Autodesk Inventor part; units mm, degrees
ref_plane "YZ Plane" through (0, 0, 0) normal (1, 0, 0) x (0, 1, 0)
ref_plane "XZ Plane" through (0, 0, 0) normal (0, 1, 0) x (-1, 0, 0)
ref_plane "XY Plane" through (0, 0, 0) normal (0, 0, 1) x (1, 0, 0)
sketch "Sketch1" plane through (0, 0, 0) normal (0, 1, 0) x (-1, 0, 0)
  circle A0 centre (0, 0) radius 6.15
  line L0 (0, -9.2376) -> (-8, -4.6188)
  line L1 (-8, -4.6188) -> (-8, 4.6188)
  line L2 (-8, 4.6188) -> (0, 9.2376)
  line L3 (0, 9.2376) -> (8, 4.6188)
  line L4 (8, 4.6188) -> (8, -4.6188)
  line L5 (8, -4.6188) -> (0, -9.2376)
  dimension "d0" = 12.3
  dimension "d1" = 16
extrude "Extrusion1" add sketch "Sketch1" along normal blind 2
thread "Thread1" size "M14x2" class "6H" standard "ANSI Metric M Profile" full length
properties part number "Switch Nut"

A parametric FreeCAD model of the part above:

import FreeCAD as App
import Part
import Sketcher

V = App.Vector
Q = App.Units.Quantity


def add_polygon(sketch, points):
    """Adds a closed chain of lines whose ends are joined by coincident constraints."""
    first, n = sketch.GeometryCount, len(points)
    for a, b in zip(points, points[1:] + points[:1]):
        sketch.addGeometry(Part.LineSegment(App.Vector(*a, 0), App.Vector(*b, 0)), False)
    for i in range(n):
        sketch.addConstraint(Sketcher.Constraint("Coincident", first + i, 2, first + (i + 1) % n, 1))

doc = App.newDocument("Part")
body = doc.addObject("PartDesign::Body", "Body")

# Sketch on XZ plane
sketch1 = body.newObject("Sketcher::SketchObject", "Sketch")
sketch1.AttachmentSupport = (doc.getObject("XZ_Plane"), [""])
sketch1.MapMode = "FlatFace"
add_polygon(sketch1, [(8, -5), (0, -9), (-8, -5), (-8, 5), (0, 9), (8, 5)])  # lines 0-5
sketch1.addGeometry(Part.Circle(V(0, 0, 0), V(0, 0, 1), 6), False)  # 6
sketch1.addConstraint([
    Sketcher.Constraint("Vertical", 2),
    Sketcher.Constraint("Vertical", 5),
    Sketcher.Constraint("Coincident", 6, 3, -1, 1),
    Sketcher.Constraint("Symmetric", 0, 2, 3, 2, -1, 1),
    Sketcher.Constraint("Symmetric", 1, 2, 4, 2, -1, 1),
    Sketcher.Constraint("PointOnObject", 0, 2, -2),
    Sketcher.Constraint("Parallel", 0, 3),
    Sketcher.Constraint("Horizontal", 2, 2, 4, 2),
    Sketcher.Constraint("Diameter", 6, Q("12.3 mm")),
    Sketcher.Constraint("DistanceX", 2, 2, 4, 2, Q("16 mm")),
    Sketcher.Constraint("Angle", 0, Q("-150 deg")),
    Sketcher.Constraint("DistanceY", 2, 1, 2, 2, Q("9.2376 mm")),
])
pad1 = body.newObject("PartDesign::Pad", "Pad")
pad1.Profile = sketch1
pad1.Length = 2
pad1.Reversed = True

doc.recompute()
